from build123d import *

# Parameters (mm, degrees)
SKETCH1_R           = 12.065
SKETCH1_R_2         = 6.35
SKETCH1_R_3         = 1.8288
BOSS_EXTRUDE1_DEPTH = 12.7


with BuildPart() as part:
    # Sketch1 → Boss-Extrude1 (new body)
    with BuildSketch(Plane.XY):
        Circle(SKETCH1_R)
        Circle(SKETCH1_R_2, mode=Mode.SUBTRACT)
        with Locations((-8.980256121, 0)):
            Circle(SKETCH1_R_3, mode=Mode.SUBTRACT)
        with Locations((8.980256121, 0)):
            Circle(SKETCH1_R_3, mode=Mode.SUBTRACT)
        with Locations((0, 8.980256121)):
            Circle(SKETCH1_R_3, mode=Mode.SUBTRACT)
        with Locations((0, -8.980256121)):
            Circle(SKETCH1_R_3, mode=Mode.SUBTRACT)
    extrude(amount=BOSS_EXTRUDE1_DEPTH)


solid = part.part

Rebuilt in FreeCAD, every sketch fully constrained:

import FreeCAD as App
import Part
import Sketcher
Q = App.Units.Quantity

doc = App.newDocument("Part")
body = doc.addObject("PartDesign::Body", "Body")

sketch1 = doc.addObject("Sketcher::SketchObject", "Sketch")
body.addObject(sketch1)
sketch1.AttachmentSupport = (doc.XY_Plane, [""])
sketch1.MapMode = "FlatFace"
sketch1.addGeometry([
    Part.Circle(App.Vector(0, 0, 0), App.Vector(0, 0, 1), 12.1),
    Part.Circle(App.Vector(0, -9, 0), App.Vector(0, 0, 1), 1.8),
    Part.Circle(App.Vector(-9, 0, 0), App.Vector(0, 0, 1), 1.8),
    Part.Circle(App.Vector(0, 0, 0), App.Vector(0, 0, 1), 6.3),
    Part.Circle(App.Vector(9, 0, 0), App.Vector(0, 0, 1), 1.8),
    Part.Circle(App.Vector(0, 9, 0), App.Vector(0, 0, 1), 1.8),
], False)
sketch1.addConstraint([
    Sketcher.Constraint("Coincident", 0, 3, -1, 1),
    Sketcher.Constraint("Coincident", 3, 3, -1, 1),
    Sketcher.Constraint("Equal", 1, 2),
    Sketcher.Constraint("Equal", 2, 4),
    Sketcher.Constraint("Equal", 4, 5),
    Sketcher.Constraint("Symmetric", 2, 3, 4, 3, -1, 1),
    Sketcher.Constraint("Symmetric", 1, 3, 5, 3, -1, 1),
    Sketcher.Constraint("PointOnObject", 1, 3, -2),
    Sketcher.Constraint("PointOnObject", 2, 3, -1),
    Sketcher.Constraint("Diameter", 3, Q("0.5 in")),
    Sketcher.Constraint("Diameter", 0, Q("0.95 in")),
    Sketcher.Constraint("Diameter", 1, Q("0.144 in")),
    Sketcher.Constraint("DistanceY", 1, 3, -1, 1, Q("8.980256 mm")),
    Sketcher.Constraint("DistanceX", 2, 3, -1, 1, Q("8.980256 mm")),
])
pad1 = doc.addObject("PartDesign::Pad", "Pad")
body.addObject(pad1)
pad1.Profile = sketch1
pad1.Length = Q("0.5 in")

doc.recompute()
